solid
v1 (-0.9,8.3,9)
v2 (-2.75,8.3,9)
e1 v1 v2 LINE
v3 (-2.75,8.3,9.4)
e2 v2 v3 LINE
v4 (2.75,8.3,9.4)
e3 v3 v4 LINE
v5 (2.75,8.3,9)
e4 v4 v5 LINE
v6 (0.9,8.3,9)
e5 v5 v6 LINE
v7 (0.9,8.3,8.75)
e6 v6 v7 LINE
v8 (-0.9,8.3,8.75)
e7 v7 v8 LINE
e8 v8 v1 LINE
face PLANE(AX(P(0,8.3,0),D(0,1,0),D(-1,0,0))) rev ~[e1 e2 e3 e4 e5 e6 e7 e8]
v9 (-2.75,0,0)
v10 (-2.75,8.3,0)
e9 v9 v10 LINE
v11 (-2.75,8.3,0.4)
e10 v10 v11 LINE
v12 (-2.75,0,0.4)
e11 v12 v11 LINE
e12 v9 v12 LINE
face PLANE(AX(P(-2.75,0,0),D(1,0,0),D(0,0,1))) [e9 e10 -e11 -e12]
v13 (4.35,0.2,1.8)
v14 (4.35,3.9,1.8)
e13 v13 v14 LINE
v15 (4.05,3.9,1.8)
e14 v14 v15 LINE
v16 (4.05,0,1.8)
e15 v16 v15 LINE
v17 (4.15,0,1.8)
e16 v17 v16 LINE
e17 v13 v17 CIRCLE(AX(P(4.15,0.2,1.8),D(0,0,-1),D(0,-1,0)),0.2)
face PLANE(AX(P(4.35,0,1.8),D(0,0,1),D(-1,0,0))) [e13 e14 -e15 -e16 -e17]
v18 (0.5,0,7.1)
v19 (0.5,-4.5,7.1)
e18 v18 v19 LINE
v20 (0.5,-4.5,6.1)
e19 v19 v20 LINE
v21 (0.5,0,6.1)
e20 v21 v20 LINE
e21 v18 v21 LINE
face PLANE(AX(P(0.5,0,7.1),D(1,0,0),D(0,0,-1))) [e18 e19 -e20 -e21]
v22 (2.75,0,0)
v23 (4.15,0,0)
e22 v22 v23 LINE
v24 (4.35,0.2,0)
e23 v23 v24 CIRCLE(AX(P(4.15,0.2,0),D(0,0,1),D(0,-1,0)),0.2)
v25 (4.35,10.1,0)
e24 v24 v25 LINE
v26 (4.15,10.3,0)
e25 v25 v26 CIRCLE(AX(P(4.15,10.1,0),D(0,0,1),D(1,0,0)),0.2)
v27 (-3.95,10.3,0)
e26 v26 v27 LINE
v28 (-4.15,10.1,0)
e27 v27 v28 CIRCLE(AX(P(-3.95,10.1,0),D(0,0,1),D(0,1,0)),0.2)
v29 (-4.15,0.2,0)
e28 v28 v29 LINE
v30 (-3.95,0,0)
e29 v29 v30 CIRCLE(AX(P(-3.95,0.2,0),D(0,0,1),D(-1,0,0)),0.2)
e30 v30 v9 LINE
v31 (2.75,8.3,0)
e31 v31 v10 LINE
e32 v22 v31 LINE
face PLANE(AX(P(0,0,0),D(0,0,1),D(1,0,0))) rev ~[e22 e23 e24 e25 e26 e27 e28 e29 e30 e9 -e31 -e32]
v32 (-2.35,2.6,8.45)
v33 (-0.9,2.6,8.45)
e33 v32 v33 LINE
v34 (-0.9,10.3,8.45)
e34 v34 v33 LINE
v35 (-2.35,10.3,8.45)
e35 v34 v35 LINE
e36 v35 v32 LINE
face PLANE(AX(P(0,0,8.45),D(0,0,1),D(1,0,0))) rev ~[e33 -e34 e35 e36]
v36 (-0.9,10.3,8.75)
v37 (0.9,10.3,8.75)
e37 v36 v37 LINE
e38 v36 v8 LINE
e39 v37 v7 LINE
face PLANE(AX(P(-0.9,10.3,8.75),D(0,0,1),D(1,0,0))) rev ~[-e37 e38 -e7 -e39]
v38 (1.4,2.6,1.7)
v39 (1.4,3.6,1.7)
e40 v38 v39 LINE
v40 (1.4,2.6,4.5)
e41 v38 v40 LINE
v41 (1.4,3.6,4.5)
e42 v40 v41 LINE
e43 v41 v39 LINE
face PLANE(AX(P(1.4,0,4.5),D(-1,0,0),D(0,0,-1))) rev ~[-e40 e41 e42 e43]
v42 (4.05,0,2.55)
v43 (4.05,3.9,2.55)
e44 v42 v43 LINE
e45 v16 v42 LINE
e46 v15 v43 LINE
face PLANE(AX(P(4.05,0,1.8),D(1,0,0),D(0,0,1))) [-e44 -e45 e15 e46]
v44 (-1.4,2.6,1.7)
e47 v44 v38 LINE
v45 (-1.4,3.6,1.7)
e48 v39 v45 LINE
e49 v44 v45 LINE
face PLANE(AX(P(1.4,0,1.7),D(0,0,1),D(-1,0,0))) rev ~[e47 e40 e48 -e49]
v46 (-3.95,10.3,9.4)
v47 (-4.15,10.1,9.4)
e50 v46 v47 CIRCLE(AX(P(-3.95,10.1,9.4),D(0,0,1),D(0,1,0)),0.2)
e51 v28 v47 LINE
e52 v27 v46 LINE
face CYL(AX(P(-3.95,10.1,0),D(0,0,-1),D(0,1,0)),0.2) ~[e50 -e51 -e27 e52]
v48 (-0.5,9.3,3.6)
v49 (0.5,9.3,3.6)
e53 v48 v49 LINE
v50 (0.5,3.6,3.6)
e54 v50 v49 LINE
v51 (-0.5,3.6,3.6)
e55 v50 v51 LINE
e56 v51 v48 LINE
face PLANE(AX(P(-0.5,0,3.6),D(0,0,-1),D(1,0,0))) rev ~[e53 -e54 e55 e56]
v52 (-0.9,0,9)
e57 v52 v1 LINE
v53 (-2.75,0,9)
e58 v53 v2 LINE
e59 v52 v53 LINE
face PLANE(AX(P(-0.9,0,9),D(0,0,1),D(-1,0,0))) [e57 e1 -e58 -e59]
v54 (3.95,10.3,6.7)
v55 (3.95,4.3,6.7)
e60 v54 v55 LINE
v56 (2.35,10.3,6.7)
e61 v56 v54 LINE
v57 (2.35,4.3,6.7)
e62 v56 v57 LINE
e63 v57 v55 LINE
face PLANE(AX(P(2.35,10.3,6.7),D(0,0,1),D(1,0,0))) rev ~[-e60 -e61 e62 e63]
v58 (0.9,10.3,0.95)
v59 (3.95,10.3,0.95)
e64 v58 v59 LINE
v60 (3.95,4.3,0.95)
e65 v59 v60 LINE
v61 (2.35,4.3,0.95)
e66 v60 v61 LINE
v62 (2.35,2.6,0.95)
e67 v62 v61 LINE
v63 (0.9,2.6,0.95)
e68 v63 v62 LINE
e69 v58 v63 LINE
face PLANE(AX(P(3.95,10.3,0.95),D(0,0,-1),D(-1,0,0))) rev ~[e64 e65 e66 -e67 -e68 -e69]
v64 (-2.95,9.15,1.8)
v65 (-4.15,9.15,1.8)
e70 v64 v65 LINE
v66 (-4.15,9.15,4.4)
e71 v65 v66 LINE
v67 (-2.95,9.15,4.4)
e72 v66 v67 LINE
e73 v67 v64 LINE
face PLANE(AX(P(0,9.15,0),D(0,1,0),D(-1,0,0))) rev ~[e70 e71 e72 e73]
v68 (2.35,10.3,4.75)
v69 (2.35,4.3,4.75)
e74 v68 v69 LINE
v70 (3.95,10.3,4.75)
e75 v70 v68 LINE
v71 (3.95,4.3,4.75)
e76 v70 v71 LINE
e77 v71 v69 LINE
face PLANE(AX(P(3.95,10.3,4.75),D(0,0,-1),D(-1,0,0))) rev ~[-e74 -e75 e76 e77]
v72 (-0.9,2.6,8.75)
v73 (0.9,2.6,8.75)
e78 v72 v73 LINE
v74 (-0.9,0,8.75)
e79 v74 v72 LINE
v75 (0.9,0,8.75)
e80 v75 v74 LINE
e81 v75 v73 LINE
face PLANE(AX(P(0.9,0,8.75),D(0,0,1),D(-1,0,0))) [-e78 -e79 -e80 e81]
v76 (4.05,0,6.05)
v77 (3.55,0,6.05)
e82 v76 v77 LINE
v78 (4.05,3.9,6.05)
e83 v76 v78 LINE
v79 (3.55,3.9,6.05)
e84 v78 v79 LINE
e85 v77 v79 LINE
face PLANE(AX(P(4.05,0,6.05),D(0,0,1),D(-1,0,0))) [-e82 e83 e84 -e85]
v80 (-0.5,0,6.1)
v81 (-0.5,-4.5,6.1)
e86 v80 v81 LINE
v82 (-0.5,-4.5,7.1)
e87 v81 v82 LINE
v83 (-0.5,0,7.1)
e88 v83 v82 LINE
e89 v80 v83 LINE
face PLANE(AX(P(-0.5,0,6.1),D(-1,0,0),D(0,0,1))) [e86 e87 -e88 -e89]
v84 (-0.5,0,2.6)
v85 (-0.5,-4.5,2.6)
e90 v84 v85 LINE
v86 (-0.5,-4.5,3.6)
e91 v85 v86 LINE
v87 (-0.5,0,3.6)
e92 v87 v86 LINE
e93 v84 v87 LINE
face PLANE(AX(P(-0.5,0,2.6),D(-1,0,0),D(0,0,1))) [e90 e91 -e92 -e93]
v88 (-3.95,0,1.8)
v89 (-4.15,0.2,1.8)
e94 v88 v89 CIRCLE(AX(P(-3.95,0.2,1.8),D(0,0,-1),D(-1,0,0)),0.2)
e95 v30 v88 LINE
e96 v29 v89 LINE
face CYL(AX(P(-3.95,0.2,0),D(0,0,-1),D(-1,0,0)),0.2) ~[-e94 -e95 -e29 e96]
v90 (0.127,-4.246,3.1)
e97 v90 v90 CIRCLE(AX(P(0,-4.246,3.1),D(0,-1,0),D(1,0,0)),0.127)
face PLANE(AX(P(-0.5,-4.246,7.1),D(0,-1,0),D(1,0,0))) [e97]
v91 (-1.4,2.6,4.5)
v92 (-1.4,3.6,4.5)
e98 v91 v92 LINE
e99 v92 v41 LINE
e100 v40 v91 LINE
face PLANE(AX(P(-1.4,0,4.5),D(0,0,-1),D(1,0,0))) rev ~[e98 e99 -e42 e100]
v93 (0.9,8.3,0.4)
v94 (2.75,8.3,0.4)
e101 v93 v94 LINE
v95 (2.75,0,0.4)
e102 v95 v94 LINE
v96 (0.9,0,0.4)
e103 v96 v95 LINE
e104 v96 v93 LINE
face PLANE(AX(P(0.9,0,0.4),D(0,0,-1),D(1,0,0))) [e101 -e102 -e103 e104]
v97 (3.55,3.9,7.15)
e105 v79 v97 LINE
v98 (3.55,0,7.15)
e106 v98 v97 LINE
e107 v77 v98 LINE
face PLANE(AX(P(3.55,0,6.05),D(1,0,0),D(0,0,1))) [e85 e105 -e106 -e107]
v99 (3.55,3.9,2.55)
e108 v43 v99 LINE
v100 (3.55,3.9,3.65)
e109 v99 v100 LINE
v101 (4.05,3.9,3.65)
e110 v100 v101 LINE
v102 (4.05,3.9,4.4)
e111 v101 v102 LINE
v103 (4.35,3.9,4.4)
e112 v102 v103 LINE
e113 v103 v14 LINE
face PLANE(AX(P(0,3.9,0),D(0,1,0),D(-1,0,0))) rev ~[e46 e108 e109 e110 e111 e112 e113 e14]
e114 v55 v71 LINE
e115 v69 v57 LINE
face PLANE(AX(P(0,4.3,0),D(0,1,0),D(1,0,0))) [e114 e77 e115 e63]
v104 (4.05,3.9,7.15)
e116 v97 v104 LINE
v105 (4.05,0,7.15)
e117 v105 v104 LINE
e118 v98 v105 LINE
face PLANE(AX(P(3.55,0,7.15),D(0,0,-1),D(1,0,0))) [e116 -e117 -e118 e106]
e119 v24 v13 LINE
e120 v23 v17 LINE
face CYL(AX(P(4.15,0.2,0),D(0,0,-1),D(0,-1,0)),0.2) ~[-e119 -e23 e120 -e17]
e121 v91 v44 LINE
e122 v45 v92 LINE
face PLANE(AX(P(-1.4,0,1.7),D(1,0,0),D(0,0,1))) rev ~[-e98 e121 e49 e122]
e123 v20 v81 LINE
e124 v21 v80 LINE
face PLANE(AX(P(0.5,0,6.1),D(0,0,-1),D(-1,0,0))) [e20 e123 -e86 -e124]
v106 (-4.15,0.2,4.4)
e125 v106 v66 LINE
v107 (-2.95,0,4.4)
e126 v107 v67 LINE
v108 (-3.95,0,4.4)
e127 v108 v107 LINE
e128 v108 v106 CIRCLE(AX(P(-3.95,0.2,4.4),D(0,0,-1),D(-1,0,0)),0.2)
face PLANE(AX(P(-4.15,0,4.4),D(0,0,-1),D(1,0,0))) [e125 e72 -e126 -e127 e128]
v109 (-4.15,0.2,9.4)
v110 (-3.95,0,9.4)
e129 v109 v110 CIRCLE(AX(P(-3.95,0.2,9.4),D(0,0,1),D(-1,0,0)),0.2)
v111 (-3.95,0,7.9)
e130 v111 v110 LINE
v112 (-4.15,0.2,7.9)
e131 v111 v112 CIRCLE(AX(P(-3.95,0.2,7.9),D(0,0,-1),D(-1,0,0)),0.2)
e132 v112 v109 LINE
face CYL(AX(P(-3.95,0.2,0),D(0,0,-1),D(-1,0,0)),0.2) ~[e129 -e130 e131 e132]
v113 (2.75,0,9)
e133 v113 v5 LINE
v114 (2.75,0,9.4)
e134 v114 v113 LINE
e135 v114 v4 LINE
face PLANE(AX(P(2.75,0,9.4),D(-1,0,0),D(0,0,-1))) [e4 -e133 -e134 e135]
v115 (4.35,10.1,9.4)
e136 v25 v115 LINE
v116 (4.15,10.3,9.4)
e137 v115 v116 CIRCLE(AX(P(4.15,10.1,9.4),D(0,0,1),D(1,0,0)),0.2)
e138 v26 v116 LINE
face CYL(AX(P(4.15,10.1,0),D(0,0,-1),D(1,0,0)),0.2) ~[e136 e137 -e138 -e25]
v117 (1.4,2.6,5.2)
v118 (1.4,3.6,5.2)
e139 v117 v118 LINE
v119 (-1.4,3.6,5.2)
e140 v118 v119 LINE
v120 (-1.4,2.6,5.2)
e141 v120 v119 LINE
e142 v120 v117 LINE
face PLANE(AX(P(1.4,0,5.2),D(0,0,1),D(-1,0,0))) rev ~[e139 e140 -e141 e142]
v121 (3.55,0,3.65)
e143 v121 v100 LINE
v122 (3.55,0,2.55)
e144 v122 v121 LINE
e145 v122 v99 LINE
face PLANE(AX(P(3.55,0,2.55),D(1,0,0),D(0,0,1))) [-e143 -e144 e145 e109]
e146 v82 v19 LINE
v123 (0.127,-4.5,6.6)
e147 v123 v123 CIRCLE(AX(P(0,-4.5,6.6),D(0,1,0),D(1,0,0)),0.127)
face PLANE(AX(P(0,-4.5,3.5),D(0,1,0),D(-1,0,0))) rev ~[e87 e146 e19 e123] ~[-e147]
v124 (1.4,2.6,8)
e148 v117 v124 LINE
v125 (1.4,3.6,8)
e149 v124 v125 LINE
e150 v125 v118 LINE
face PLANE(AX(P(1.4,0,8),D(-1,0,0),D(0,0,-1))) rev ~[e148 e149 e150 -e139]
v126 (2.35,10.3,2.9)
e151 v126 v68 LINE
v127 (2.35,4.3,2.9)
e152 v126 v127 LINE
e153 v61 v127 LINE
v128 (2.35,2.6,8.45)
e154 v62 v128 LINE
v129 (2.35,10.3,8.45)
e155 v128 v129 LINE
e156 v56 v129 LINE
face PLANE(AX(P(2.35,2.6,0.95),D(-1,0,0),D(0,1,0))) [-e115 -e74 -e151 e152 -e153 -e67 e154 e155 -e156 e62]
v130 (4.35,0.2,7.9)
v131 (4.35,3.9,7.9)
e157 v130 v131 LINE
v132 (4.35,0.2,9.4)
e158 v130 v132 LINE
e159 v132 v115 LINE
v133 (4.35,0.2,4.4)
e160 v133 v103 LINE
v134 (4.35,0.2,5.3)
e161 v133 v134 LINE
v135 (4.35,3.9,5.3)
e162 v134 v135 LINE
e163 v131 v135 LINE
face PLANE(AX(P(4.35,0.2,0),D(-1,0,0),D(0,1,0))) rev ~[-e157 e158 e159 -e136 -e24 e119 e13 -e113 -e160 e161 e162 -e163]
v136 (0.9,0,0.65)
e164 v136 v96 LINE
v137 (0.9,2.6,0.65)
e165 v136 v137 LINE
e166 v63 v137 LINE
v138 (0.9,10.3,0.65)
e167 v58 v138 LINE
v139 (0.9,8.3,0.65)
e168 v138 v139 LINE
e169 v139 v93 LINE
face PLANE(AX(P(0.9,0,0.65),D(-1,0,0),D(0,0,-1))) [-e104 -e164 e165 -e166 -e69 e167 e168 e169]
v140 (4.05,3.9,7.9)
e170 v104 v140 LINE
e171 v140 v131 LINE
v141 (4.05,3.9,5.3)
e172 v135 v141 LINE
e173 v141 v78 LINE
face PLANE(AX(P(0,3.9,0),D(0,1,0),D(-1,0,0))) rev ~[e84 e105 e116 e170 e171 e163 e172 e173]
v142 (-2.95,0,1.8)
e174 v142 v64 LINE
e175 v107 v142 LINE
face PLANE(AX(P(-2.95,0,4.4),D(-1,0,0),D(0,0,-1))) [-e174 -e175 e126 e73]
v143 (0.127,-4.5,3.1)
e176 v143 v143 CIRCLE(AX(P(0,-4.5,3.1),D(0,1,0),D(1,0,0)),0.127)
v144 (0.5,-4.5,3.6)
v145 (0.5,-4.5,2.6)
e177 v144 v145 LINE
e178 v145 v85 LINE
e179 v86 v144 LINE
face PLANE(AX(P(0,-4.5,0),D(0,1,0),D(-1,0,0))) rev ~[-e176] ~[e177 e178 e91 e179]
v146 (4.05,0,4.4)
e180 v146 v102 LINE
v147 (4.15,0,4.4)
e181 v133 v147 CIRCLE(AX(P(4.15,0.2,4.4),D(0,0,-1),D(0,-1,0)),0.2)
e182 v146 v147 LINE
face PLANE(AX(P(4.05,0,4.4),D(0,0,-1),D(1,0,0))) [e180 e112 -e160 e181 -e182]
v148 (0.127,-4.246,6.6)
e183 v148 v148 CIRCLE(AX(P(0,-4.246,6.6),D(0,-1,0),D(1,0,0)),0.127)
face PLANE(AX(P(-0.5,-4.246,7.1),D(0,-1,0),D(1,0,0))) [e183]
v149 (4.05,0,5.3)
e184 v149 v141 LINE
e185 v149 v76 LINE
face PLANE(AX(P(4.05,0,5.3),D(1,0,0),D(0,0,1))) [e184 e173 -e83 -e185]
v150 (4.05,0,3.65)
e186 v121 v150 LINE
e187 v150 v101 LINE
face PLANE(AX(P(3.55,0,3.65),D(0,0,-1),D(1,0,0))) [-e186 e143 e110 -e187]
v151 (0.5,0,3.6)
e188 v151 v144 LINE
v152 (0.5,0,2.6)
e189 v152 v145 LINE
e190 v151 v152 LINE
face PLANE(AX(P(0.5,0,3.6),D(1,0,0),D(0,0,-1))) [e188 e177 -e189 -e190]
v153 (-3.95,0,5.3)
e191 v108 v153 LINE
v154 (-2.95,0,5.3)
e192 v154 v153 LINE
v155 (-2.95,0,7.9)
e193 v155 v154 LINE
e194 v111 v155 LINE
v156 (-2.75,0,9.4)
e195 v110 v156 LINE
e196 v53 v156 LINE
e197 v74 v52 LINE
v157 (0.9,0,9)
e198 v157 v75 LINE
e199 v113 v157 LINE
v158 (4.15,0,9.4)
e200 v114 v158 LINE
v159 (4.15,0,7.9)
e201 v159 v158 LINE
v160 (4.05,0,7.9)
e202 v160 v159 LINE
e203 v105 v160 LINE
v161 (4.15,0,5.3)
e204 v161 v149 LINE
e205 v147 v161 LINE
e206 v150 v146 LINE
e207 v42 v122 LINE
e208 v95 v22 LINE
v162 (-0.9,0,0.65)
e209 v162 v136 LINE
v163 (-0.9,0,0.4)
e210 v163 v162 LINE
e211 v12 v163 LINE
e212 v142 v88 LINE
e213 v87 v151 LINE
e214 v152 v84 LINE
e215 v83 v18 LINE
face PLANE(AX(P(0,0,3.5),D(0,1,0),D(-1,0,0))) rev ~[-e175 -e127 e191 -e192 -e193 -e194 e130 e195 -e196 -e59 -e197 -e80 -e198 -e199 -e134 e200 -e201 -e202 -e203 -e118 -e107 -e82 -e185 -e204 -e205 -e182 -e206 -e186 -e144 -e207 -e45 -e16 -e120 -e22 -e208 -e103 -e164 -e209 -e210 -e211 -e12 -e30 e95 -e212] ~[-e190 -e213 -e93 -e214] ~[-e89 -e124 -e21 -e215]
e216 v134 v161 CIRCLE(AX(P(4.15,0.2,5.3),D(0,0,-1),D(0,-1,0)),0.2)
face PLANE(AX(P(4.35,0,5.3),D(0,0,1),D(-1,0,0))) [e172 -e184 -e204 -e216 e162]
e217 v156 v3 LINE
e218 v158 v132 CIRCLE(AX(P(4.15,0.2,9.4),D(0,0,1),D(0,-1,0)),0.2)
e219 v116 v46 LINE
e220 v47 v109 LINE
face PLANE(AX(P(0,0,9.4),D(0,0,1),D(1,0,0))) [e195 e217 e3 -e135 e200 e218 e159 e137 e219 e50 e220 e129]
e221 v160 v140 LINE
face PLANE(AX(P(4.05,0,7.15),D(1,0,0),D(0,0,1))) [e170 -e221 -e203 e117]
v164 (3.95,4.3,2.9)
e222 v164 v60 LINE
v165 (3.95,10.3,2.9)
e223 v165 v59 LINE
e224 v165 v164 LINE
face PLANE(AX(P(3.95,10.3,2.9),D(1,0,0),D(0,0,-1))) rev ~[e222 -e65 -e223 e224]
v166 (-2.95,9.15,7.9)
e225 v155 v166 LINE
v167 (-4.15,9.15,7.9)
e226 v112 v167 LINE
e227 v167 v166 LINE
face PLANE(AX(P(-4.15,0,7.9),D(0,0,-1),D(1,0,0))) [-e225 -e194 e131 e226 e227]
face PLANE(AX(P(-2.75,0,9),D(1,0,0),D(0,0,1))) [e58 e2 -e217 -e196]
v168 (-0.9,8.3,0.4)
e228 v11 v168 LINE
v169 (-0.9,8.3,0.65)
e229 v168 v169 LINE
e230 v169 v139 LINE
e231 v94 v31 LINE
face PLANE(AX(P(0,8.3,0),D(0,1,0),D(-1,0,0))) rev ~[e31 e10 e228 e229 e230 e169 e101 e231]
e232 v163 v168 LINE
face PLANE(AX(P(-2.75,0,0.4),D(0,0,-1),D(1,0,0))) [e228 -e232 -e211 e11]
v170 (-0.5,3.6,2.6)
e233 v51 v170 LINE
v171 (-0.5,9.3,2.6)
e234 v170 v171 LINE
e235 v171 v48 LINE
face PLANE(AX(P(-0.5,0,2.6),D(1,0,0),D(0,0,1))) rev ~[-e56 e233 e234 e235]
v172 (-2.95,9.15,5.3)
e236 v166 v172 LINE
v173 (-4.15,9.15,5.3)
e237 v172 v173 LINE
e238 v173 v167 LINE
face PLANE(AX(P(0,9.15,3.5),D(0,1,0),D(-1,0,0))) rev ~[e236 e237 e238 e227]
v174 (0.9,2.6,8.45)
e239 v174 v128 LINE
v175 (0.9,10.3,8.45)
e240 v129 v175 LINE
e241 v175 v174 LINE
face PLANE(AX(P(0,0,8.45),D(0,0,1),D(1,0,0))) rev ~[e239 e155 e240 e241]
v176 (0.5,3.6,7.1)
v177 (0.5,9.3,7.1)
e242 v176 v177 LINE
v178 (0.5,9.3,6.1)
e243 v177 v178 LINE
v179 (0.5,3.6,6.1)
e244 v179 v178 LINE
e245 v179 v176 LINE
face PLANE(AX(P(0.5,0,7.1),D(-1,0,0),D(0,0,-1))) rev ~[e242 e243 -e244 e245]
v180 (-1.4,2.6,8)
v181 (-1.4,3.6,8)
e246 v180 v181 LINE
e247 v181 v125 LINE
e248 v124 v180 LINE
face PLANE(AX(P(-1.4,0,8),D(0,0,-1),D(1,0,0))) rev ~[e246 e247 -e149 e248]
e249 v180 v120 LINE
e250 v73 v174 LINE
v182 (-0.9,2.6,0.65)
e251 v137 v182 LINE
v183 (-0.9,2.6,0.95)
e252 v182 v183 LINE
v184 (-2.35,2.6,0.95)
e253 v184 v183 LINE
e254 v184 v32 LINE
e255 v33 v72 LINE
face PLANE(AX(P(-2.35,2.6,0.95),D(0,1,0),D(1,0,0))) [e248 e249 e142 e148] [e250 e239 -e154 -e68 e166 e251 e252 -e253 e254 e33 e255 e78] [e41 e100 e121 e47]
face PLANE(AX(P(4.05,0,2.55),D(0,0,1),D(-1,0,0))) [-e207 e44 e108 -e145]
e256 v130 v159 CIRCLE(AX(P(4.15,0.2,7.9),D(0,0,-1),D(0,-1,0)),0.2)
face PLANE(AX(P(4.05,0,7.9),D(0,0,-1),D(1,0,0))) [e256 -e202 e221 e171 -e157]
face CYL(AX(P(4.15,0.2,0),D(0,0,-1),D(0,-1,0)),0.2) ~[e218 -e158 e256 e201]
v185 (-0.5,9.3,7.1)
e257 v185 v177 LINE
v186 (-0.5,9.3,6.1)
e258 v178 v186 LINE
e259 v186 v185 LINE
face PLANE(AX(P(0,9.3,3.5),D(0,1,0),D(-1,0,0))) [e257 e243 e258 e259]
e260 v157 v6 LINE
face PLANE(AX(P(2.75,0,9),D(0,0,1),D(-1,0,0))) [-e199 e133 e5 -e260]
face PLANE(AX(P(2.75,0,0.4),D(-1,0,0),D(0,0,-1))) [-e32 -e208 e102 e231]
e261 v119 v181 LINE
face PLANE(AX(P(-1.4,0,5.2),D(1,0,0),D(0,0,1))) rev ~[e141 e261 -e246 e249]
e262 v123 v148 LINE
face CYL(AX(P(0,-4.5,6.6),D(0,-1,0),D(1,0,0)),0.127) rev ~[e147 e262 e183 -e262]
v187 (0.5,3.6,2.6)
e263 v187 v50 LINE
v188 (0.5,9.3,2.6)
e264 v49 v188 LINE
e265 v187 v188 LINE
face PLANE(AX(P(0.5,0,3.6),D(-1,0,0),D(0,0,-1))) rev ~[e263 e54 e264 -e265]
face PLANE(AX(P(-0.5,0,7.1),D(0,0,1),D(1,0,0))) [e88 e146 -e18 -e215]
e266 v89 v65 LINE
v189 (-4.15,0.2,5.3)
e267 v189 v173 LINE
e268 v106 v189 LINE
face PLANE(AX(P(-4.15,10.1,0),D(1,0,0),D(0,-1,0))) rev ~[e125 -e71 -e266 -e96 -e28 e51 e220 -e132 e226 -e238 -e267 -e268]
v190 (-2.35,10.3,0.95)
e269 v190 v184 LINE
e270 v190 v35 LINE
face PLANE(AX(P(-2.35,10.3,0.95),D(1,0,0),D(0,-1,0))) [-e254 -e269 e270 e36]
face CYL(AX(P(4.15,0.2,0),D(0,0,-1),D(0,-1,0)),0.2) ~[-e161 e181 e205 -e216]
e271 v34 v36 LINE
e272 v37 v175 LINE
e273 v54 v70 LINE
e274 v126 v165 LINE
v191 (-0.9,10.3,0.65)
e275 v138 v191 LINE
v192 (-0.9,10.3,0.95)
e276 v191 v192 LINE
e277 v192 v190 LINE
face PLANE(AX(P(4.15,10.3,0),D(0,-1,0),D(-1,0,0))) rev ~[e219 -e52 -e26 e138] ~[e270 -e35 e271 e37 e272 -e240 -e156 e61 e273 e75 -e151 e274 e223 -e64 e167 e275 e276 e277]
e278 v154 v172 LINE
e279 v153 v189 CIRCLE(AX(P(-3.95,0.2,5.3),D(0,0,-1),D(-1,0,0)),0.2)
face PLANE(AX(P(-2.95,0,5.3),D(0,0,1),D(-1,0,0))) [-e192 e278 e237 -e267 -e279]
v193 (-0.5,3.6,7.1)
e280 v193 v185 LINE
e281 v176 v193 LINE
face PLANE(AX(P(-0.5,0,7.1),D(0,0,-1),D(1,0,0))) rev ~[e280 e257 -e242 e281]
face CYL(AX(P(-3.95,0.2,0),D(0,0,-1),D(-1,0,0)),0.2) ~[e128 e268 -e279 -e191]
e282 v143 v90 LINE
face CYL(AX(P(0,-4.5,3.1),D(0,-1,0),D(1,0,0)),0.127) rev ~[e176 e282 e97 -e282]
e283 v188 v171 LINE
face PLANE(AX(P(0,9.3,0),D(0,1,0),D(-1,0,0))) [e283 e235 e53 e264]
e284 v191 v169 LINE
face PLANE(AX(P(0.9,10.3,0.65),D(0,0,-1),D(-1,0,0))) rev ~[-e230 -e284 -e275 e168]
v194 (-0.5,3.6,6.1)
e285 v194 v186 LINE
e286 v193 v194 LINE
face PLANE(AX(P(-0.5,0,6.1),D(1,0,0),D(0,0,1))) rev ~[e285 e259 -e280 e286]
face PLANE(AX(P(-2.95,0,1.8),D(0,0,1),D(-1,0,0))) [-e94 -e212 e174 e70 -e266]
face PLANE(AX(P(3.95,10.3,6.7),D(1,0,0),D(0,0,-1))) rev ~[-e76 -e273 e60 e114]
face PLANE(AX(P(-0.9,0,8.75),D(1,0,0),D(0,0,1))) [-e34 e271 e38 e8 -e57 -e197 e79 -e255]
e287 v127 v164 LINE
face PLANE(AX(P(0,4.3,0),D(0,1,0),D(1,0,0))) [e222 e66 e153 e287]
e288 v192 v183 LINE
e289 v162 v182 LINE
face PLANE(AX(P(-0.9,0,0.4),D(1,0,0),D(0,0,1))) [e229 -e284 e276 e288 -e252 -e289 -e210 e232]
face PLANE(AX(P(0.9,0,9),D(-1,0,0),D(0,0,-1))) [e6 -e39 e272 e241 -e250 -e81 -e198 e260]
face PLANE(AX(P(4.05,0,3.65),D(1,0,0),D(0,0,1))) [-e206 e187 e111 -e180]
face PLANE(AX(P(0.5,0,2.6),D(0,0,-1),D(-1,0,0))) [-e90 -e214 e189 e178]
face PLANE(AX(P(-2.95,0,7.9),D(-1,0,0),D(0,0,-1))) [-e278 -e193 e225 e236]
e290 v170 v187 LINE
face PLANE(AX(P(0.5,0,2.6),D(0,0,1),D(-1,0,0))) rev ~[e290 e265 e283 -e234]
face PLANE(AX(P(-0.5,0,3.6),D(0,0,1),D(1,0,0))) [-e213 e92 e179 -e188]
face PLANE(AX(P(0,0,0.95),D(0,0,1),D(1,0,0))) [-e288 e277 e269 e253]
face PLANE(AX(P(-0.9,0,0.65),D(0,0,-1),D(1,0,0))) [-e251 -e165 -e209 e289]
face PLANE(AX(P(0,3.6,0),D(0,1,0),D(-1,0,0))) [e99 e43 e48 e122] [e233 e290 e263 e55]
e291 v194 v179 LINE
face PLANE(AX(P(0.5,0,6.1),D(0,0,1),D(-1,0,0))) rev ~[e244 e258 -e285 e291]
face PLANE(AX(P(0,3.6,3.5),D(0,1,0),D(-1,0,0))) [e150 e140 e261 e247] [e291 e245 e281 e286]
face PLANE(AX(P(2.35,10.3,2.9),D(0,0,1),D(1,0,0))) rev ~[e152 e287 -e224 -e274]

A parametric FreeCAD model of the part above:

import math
import FreeCAD as App
import Part
import Sketcher


def add_polygon(sketch, points):
    """Adds a closed chain of lines whose ends are joined by coincident constraints."""
    first, n = sketch.GeometryCount, len(points)
    for a, b in zip(points, points[1:] + points[:1]):
        sketch.addGeometry(Part.LineSegment(App.Vector(*a, 0), App.Vector(*b, 0)), False)
    for i in range(n):
        sketch.addConstraint(Sketcher.Constraint("Coincident", first + i, 2, first + (i + 1) % n, 1))

doc = App.newDocument("Part")
params = doc.addObject("Spreadsheet::Sheet", "Params")
for row, (alias, value) in enumerate([
    ("sketch1_radius", "0.2 mm"),
    ("sketch1_width", "8.1 mm"),
    ("sketch1_height", "9.9 mm"),
    ("pad1_length", "9.4 mm"),
    ("sketch2_width", "4.7 mm"),
    ("sketch2_height", "7.7 mm"),
    ("pocket1_length", "7.5 mm"),
    ("sketch3_width", "1.8 mm"),
    ("sketch3_height", "0.3 mm"),
    ("pocket2_length", "7.7 mm"),
    ("sketch4_width", "1.8 mm"),
    ("sketch4_height", "0.3 mm"),
    ("pocket3_length", "7.7 mm"),
    ("sketch5_width", "1.6 mm"),
    ("sketch5_height", "1.95 mm"),
    ("pocket4_length", "6 mm"),
    ("sketch6_width", "1.6 mm"),
    ("sketch6_height", "1.95 mm"),
    ("pocket5_length", "6 mm"),
    ("sketch7_width", "2.8 mm"),
    ("pad2_length", "3.6 mm"),
    ("linearpattern_pitch", "3.5 mm"),
    ("sketch8_width", "1 mm"),
    ("pad3_length", "9.3 mm"),
    ("linearpattern2_pitch", "3.5 mm"),
    ("sketch9_width", "1 mm"),
    ("pad4_length", "4.5 mm"),
    ("linearpattern3_pitch", "3.5 mm"),
    ("sketch10_width", "5.5 mm"),
    ("sketch10_width2", "1.8 mm"),
    ("sketch10_height", "0.4 mm"),
    ("sketch10_height2", "0.25 mm"),
    ("pocket6_length", "8.3 mm"),
    ("sketch11_width", "5.5 mm"),
    ("sketch11_width2", "1.8 mm"),
    ("sketch11_height", "0.4 mm"),
    ("sketch11_height2", "0.25 mm"),
    ("pocket7_length", "8.3 mm"),
    ("sketch12_width", "1.2 mm"),
    ("sketch12_height", "2.6 mm"),
    ("pocket8_length", "9.15 mm"),
    ("linearpattern4_pitch", "3.5 mm"),
    ("sketch13_width", "0.5 mm"),
    ("sketch13_width2", "0.3 mm"),
    ("sketch13_height", "1.1 mm"),
    ("sketch13_height2", "2.6 mm"),
    ("pocket9_length", "3.9 mm"),
    ("sketch14_width", "0.5 mm"),
    ("sketch14_width2", "0.3 mm"),
    ("sketch14_height", "1.1 mm"),
    ("sketch14_height2", "2.6 mm"),
    ("pocket10_length", "3.9 mm"),
    ("pocket11_length", "0.254 mm"),
], start=1):
    params.set(f"A{row}", alias)
    params.set(f"B{row}", "=" + value)
    params.setAlias(f"B{row}", alias)

body = doc.addObject("PartDesign::Body", "Body")

# Sketch on XY plane
sketch1 = doc.addObject("Sketcher::SketchObject", "Sketch")
body.addObject(sketch1)
sketch1.AttachmentSupport = (doc.XY_Plane, [""])
sketch1.MapMode = "FlatFace"
sketch1.addGeometry([
    Part.LineSegment(App.Vector(-4.15, 10.1, 0), App.Vector(-4.15, 0.2, 0)),  # 0
    Part.ArcOfCircle(Part.Circle(App.Vector(-3.95, 0.2, 0), App.Vector(0, 0, 1), 0.2), math.radians(180), math.radians(270)),  # 1
    Part.LineSegment(App.Vector(-3.95, 0, 0), App.Vector(4.15, 0, 0)),  # 2
    Part.ArcOfCircle(Part.Circle(App.Vector(4.15, 0.2, 0), App.Vector(0, 0, 1), 0.2), math.radians(-90), math.radians(0)),  # 3
    Part.LineSegment(App.Vector(4.35, 0.2, 0), App.Vector(4.35, 10.1, 0)),  # 4
    Part.ArcOfCircle(Part.Circle(App.Vector(4.15, 10.1, 0), App.Vector(0, 0, 1), 0.2), math.radians(0), math.radians(90)),  # 5
    Part.LineSegment(App.Vector(4.15, 10.3, 0), App.Vector(-3.95, 10.3, 0)),  # 6
    Part.ArcOfCircle(Part.Circle(App.Vector(-3.95, 10.1, 0), App.Vector(0, 0, 1), 0.2), math.radians(90), math.radians(180)),  # 7
], False)
sketch1.addConstraint([
    Sketcher.Constraint("Tangent", 0, 2, 1, 1),
    Sketcher.Constraint("Tangent", 1, 2, 2, 1),
    Sketcher.Constraint("Tangent", 2, 2, 3, 1),
    Sketcher.Constraint("Tangent", 3, 2, 4, 1),
    Sketcher.Constraint("Tangent", 4, 2, 5, 1),
    Sketcher.Constraint("Tangent", 5, 2, 6, 1),
    Sketcher.Constraint("Tangent", 6, 2, 7, 1),
    Sketcher.Constraint("Tangent", 7, 2, 0, 1),
    Sketcher.Constraint("Vertical", 0),
    Sketcher.Constraint("Horizontal", 2),
    Sketcher.Constraint("Vertical", 4),
    Sketcher.Constraint("Horizontal", 6),
    Sketcher.Constraint("Equal", 1, 3),
    Sketcher.Constraint("Equal", 3, 5),
    Sketcher.Constraint("Equal", 5, 7),
    Sketcher.Constraint("PointOnObject", 1, 2, -1),
    Sketcher.Constraint("Radius", 1, 0.2),
    Sketcher.Constraint("DistanceX", 2, 1, 2, 2, 8.1),
    Sketcher.Constraint("DistanceY", 0, 2, 0, 1, 9.9),
    Sketcher.Constraint("DistanceX", 1, 3, -1, 1, 3.95),
])
sketch1.setExpression("Constraints[16]", "Params.sketch1_radius")
sketch1.setExpression("Constraints[17]", "Params.sketch1_width")
sketch1.setExpression("Constraints[18]", "Params.sketch1_height")
pad1 = doc.addObject("PartDesign::Pad", "Pad")
body.addObject(pad1)
pad1.Profile = sketch1
pad1.setExpression("Length", "Params.pad1_length")

# Sketch on XY plane
sketch2 = doc.addObject("Sketcher::SketchObject", "Sketch001")
body.addObject(sketch2)
sketch2.AttachmentSupport = (doc.XY_Plane, [""])
sketch2.MapMode = "FlatFace"
sketch2.AttachmentOffset = App.Placement(App.Vector(0, 0, 0.95), App.Rotation())
add_polygon(sketch2, [(2.35, 10.3), (-2.35, 10.3), (-2.35, 2.6), (2.35, 2.6)])  # lines 0-3
sketch2.addConstraint([
    Sketcher.Constraint("Horizontal", 0),
    Sketcher.Constraint("Vertical", 1),
    Sketcher.Constraint("Horizontal", 2),
    Sketcher.Constraint("Vertical", 3),
    Sketcher.Constraint("DistanceX", 0, 2, 0, 1, 4.7),
    Sketcher.Constraint("DistanceY", 1, 2, 1, 1, 7.7),
    Sketcher.Constraint("DistanceY", -1, 1, 0, 2, 10.3),
    Sketcher.Constraint("DistanceX", 0, 2, -1, 1, 2.35),
])
sketch2.setExpression("Constraints[8]", "Params.sketch2_width")
sketch2.setExpression("Constraints[9]", "Params.sketch2_height")
pocket1 = doc.addObject("PartDesign::Pocket", "Pocket")
body.addObject(pocket1)
pocket1.Profile = sketch2
pocket1.setExpression("Length", "Params.pocket1_length")
pocket1.Reversed = True

# Sketch on XZ plane
sketch3 = doc.addObject("Sketcher::SketchObject", "Sketch002")
body.addObject(sketch3)
sketch3.AttachmentSupport = (doc.XZ_Plane, [""])
sketch3.MapMode = "FlatFace"
sketch3.AttachmentOffset = App.Placement(App.Vector(0, 0, -10.3), App.Rotation())
add_polygon(sketch3, [(-0.9, 0.65), (-0.9, 0.95), (0.9, 0.95), (0.9, 0.65)])  # lines 0-3
sketch3.addConstraint([
    Sketcher.Constraint("Vertical", 0),
    Sketcher.Constraint("Horizontal", 1),
    Sketcher.Constraint("Vertical", 2),
    Sketcher.Constraint("Horizontal", 3),
    Sketcher.Constraint("DistanceX", 1, 1, 1, 2, 1.8),
    Sketcher.Constraint("DistanceY", 0, 1, 0, 2, 0.3),
    Sketcher.Constraint("DistanceX", 0, 2, -1, 1, 0.9),
    Sketcher.Constraint("DistanceY", -1, 1, 0, 2, 0.95),
])
sketch3.setExpression("Constraints[8]", "Params.sketch3_width")
sketch3.setExpression("Constraints[9]", "Params.sketch3_height")
pocket2 = doc.addObject("PartDesign::Pocket", "Pocket001")
body.addObject(pocket2)
pocket2.Profile = sketch3
pocket2.setExpression("Length", "Params.pocket2_length")
pocket2.Reversed = True

# Sketch on XZ plane
sketch4 = doc.addObject("Sketcher::SketchObject", "Sketch003")
body.addObject(sketch4)
sketch4.AttachmentSupport = (doc.XZ_Plane, [""])
sketch4.MapMode = "FlatFace"
sketch4.AttachmentOffset = App.Placement(App.Vector(0, 0, -10.3), App.Rotation())
add_polygon(sketch4, [(0.9, 8.45), (-0.9, 8.45), (-0.9, 8.75), (0.9, 8.75)])  # lines 0-3
sketch4.addConstraint([
    Sketcher.Constraint("Horizontal", 0),
    Sketcher.Constraint("Vertical", 1),
    Sketcher.Constraint("Horizontal", 2),
    Sketcher.Constraint("Vertical", 3),
    Sketcher.Constraint("DistanceX", 0, 2, 0, 1, 1.8),
    Sketcher.Constraint("DistanceY", 1, 1, 1, 2, 0.3),
    Sketcher.Constraint("DistanceX", 0, 2, -1, 1, 0.9),
    Sketcher.Constraint("DistanceY", -1, 1, 0, 2, 8.45),
])
sketch4.setExpression("Constraints[8]", "Params.sketch4_width")
sketch4.setExpression("Constraints[9]", "Params.sketch4_height")
pocket3 = doc.addObject("PartDesign::Pocket", "Pocket002")
body.addObject(pocket3)
pocket3.Profile = sketch4
pocket3.setExpression("Length", "Params.pocket3_length")
pocket3.Reversed = True

# Sketch on XZ plane
sketch5 = doc.addObject("Sketcher::SketchObject", "Sketch004")
body.addObject(sketch5)
sketch5.AttachmentSupport = (doc.XZ_Plane, [""])
sketch5.MapMode = "FlatFace"
sketch5.AttachmentOffset = App.Placement(App.Vector(0, 0, -10.3), App.Rotation())
add_polygon(sketch5, [(3.95, 0.95), (2.35, 0.95), (2.35, 2.9), (3.95, 2.9)])  # lines 0-3
sketch5.addConstraint([
    Sketcher.Constraint("Horizontal", 0),
    Sketcher.Constraint("Vertical", 1),
    Sketcher.Constraint("Horizontal", 2),
    Sketcher.Constraint("Vertical", 3),
    Sketcher.Constraint("DistanceX", 0, 2, 0, 1, 1.6),
    Sketcher.Constraint("DistanceY", 1, 1, 1, 2, 1.95),
    Sketcher.Constraint("DistanceY", -1, 1, 1, 2, 2.9),
    Sketcher.Constraint("DistanceX", -1, 1, 0, 2, 2.35),
])
sketch5.setExpression("Constraints[8]", "Params.sketch5_width")
sketch5.setExpression("Constraints[9]", "Params.sketch5_height")
pocket4 = doc.addObject("PartDesign::Pocket", "Pocket003")
body.addObject(pocket4)
pocket4.Profile = sketch5
pocket4.setExpression("Length", "Params.pocket4_length")
pocket4.Reversed = True

# Sketch on XZ plane
sketch6 = doc.addObject("Sketcher::SketchObject", "Sketch005")
body.addObject(sketch6)
sketch6.AttachmentSupport = (doc.XZ_Plane, [""])
sketch6.MapMode = "FlatFace"
sketch6.AttachmentOffset = App.Placement(App.Vector(0, 0, -10.3), App.Rotation())
add_polygon(sketch6, [(2.35, 4.75), (2.35, 6.7), (3.95, 6.7), (3.95, 4.75)])  # lines 0-3
sketch6.addConstraint([
    Sketcher.Constraint("Vertical", 0),
    Sketcher.Constraint("Horizontal", 1),
    Sketcher.Constraint("Vertical", 2),
    Sketcher.Constraint("Horizontal", 3),
    Sketcher.Constraint("DistanceX", 1, 1, 1, 2, 1.6),
    Sketcher.Constraint("DistanceY", 0, 1, 0, 2, 1.95),
    Sketcher.Constraint("DistanceY", -1, 1, 0, 2, 6.7),
    Sketcher.Constraint("DistanceX", -1, 1, 0, 2, 2.35),
])
sketch6.setExpression("Constraints[8]", "Params.sketch6_width")
sketch6.setExpression("Constraints[9]", "Params.sketch6_height")
pocket5 = doc.addObject("PartDesign::Pocket", "Pocket004")
body.addObject(pocket5)
pocket5.Profile = sketch6
pocket5.setExpression("Length", "Params.pocket5_length")
pocket5.Reversed = True

# Sketch on XZ plane
sketch7 = doc.addObject("Sketcher::SketchObject", "Sketch006")
body.addObject(sketch7)
sketch7.AttachmentSupport = (doc.XZ_Plane, [""])
sketch7.MapMode = "FlatFace"
add_polygon(sketch7, [(1.4, 1.7), (-1.4, 1.7), (-1.4, 4.5), (1.4, 4.5)])  # lines 0-3
sketch7.addConstraint([
    Sketcher.Constraint("Horizontal", 0),
    Sketcher.Constraint("Vertical", 1),
    Sketcher.Constraint("Horizontal", 2),
    Sketcher.Constraint("Vertical", 3),
    Sketcher.Constraint("Equal", 2, 1),
    Sketcher.Constraint("DistanceX", 0, 2, 0, 1, 2.8),
    Sketcher.Constraint("DistanceX", 0, 2, -1, 1, 1.4),
    Sketcher.Constraint("DistanceY", -1, 1, 0, 2, 1.7),
])
sketch7.setExpression("Constraints[9]", "Params.sketch7_width")
pad2 = doc.addObject("PartDesign::Pad", "Pad001")
body.addObject(pad2)
pad2.Profile = sketch7
pad2.setExpression("Length", "Params.pad2_length")
pad2.Reversed = True
doc.recompute()

linearpattern = doc.addObject("PartDesign::LinearPattern", "LinearPattern")
body.addObject(linearpattern)
linearpattern.Originals = [pad2]
linearpattern.Direction = (doc.Z_Axis, [""])
linearpattern.Mode = "offset"
linearpattern.setExpression("Offset", "Params.linearpattern_pitch")
linearpattern.Occurrences = 2
body.Tip = linearpattern

# Sketch on XZ plane
sketch8 = doc.addObject("Sketcher::SketchObject", "Sketch007")
body.addObject(sketch8)
sketch8.AttachmentSupport = (doc.XZ_Plane, [""])
sketch8.MapMode = "FlatFace"
add_polygon(sketch8, [(0.5, 2.6), (-0.5, 2.6), (-0.5, 3.6), (0.5, 3.6)])  # lines 0-3
sketch8.addConstraint([
    Sketcher.Constraint("Horizontal", 0),
    Sketcher.Constraint("Vertical", 1),
    Sketcher.Constraint("Horizontal", 2),
    Sketcher.Constraint("Vertical", 3),
    Sketcher.Constraint("Equal", 2, 1),
    Sketcher.Constraint("DistanceX", 0, 2, 0, 1, 1.0),
    Sketcher.Constraint("DistanceX", 0, 2, -1, 1, 0.5),
    Sketcher.Constraint("DistanceY", -1, 1, 0, 2, 2.6),
])
sketch8.setExpression("Constraints[9]", "Params.sketch8_width")
pad3 = doc.addObject("PartDesign::Pad", "Pad002")
body.addObject(pad3)
pad3.Profile = sketch8
pad3.setExpression("Length", "Params.pad3_length")
pad3.Reversed = True
doc.recompute()

linearpattern2 = doc.addObject("PartDesign::LinearPattern", "LinearPattern001")
body.addObject(linearpattern2)
linearpattern2.Originals = [pad3]
linearpattern2.Direction = (doc.Z_Axis, [""])
linearpattern2.Mode = "offset"
linearpattern2.setExpression("Offset", "Params.linearpattern2_pitch")
linearpattern2.Occurrences = 2
body.Tip = linearpattern2

# Sketch on XZ plane
sketch9 = doc.addObject("Sketcher::SketchObject", "Sketch008")
body.addObject(sketch9)
sketch9.AttachmentSupport = (doc.XZ_Plane, [""])
sketch9.MapMode = "FlatFace"
add_polygon(sketch9, [(0.5, 2.6), (-0.5, 2.6), (-0.5, 3.6), (0.5, 3.6)])  # lines 0-3
sketch9.addConstraint([
    Sketcher.Constraint("Horizontal", 0),
    Sketcher.Constraint("Vertical", 1),
    Sketcher.Constraint("Horizontal", 2),
    Sketcher.Constraint("Vertical", 3),
    Sketcher.Constraint("Equal", 2, 1),
    Sketcher.Constraint("DistanceX", 0, 2, 0, 1, 1.0),
    Sketcher.Constraint("DistanceX", 0, 2, -1, 1, 0.5),
    Sketcher.Constraint("DistanceY", -1, 1, 0, 2, 2.6),
])
sketch9.setExpression("Constraints[9]", "Params.sketch9_width")
pad4 = doc.addObject("PartDesign::Pad", "Pad003")
body.addObject(pad4)
pad4.Profile = sketch9
pad4.setExpression("Length", "Params.pad4_length")
doc.recompute()

linearpattern3 = doc.addObject("PartDesign::LinearPattern", "LinearPattern002")
body.addObject(linearpattern3)
linearpattern3.Originals = [pad4]
linearpattern3.Direction = (doc.Z_Axis, [""])
linearpattern3.Mode = "offset"
linearpattern3.setExpression("Offset", "Params.linearpattern3_pitch")
linearpattern3.Occurrences = 2
body.Tip = linearpattern3

# Sketch on XZ plane
sketch10 = doc.addObject("Sketcher::SketchObject", "Sketch009")
body.addObject(sketch10)
sketch10.AttachmentSupport = (doc.XZ_Plane, [""])
sketch10.MapMode = "FlatFace"
add_polygon(sketch10, [(2.75, 0), (-2.75, 0), (-2.75, 0.4), (-0.9, 0.4), (-0.9, 0.65), (0.9, 0.65), (0.9, 0.4), (2.75, 0.4)])  # lines 0-7
sketch10.addConstraint([
    Sketcher.Constraint("Horizontal", 0),
    Sketcher.Constraint("Vertical", 1),
    Sketcher.Constraint("Horizontal", 2),
    Sketcher.Constraint("Vertical", 3),
    Sketcher.Constraint("Horizontal", 4),
    Sketcher.Constraint("Vertical", 5),
    Sketcher.Constraint("Horizontal", 6),
    Sketcher.Constraint("Vertical", 7),
    Sketcher.Constraint("Symmetric", 0, 2, 7, 2, -1, 1),
    Sketcher.Constraint("Symmetric", 2, 2, 5, 2, -2),
    Sketcher.Constraint("DistanceX", 0, 2, 0, 1, 5.5),
    Sketcher.Constraint("DistanceX", 4, 1, 4, 2, 1.8),
    Sketcher.Constraint("DistanceY", 1, 1, 1, 2, 0.4),
    Sketcher.Constraint("DistanceY", 3, 1, 3, 2, 0.25),
])
sketch10.setExpression("Constraints[18]", "Params.sketch10_width")
sketch10.setExpression("Constraints[19]", "Params.sketch10_width2")
sketch10.setExpression("Constraints[20]", "Params.sketch10_height")
sketch10.setExpression("Constraints[21]", "Params.sketch10_height2")
pocket6 = doc.addObject("PartDesign::Pocket", "Pocket005")
body.addObject(pocket6)
pocket6.Profile = sketch10
pocket6.setExpression("Length", "Params.pocket6_length")

# Sketch on XZ plane
sketch11 = doc.addObject("Sketcher::SketchObject", "Sketch010")
body.addObject(sketch11)
sketch11.AttachmentSupport = (doc.XZ_Plane, [""])
sketch11.MapMode = "FlatFace"
add_polygon(sketch11, [(-2.75, 9), (-2.75, 9.4), (2.75, 9.4), (2.75, 9), (0.9, 9), (0.9, 8.75), (-0.9, 8.75), (-0.9, 9)])  # lines 0-7
sketch11.addConstraint([
    Sketcher.Constraint("Vertical", 0),
    Sketcher.Constraint("Horizontal", 1),
    Sketcher.Constraint("Vertical", 2),
    Sketcher.Constraint("Horizontal", 3),
    Sketcher.Constraint("Vertical", 4),
    Sketcher.Constraint("Horizontal", 5),
    Sketcher.Constraint("Vertical", 6),
    Sketcher.Constraint("Horizontal", 7),
    Sketcher.Constraint("Symmetric", 3, 2, 6, 2, -2),
    Sketcher.Constraint("Equal", 3, 7),
    Sketcher.Constraint("DistanceX", 1, 1, 1, 2, 5.5),
    Sketcher.Constraint("DistanceX", 5, 2, 5, 1, 1.8),
    Sketcher.Constraint("DistanceY", 0, 1, 0, 2, 0.4),
    Sketcher.Constraint("DistanceY", -1, 1, 2, 2, 9.0),
    Sketcher.Constraint("DistanceY", 4, 2, 4, 1, 0.25),
])
sketch11.setExpression("Constraints[18]", "Params.sketch11_width")
sketch11.setExpression("Constraints[19]", "Params.sketch11_width2")
sketch11.setExpression("Constraints[20]", "Params.sketch11_height")
sketch11.setExpression("Constraints[22]", "Params.sketch11_height2")
pocket7 = doc.addObject("PartDesign::Pocket", "Pocket006")
body.addObject(pocket7)
pocket7.Profile = sketch11
pocket7.setExpression("Length", "Params.pocket7_length")

# Sketch on XZ plane
sketch12 = doc.addObject("Sketcher::SketchObject", "Sketch011")
body.addObject(sketch12)
sketch12.AttachmentSupport = (doc.XZ_Plane, [""])
sketch12.MapMode = "FlatFace"
add_polygon(sketch12, [(-2.95, 1.8), (-4.15, 1.8), (-4.15, 4.4), (-2.95, 4.4)])  # lines 0-3
sketch12.addConstraint([
    Sketcher.Constraint("Horizontal", 0),
    Sketcher.Constraint("Vertical", 1),
    Sketcher.Constraint("Horizontal", 2),
    Sketcher.Constraint("Vertical", 3),
    Sketcher.Constraint("DistanceX", 0, 2, 0, 1, 1.2),
    Sketcher.Constraint("DistanceY", 1, 1, 1, 2, 2.6),
    Sketcher.Constraint("DistanceY", -1, 1, 0, 2, 1.8),
    Sketcher.Constraint("DistanceX", 0, 2, -1, 1, 4.15),
])
sketch12.setExpression("Constraints[8]", "Params.sketch12_width")
sketch12.setExpression("Constraints[9]", "Params.sketch12_height")
pocket8 = doc.addObject("PartDesign::Pocket", "Pocket007")
body.addObject(pocket8)
pocket8.Profile = sketch12
pocket8.setExpression("Length", "Params.pocket8_length")
doc.recompute()

linearpattern4 = doc.addObject("PartDesign::LinearPattern", "LinearPattern003")
body.addObject(linearpattern4)
linearpattern4.Originals = [pocket8]
linearpattern4.Direction = (doc.Z_Axis, [""])
linearpattern4.Mode = "offset"
linearpattern4.setExpression("Offset", "Params.linearpattern4_pitch")
linearpattern4.Occurrences = 2
body.Tip = linearpattern4

# Sketch on XZ plane
sketch13 = doc.addObject("Sketcher::SketchObject", "Sketch012")
body.addObject(sketch13)
sketch13.AttachmentSupport = (doc.XZ_Plane, [""])
sketch13.MapMode = "FlatFace"
add_polygon(sketch13, [(4.05, 2.55), (3.55, 2.55), (3.55, 3.65), (4.05, 3.65), (4.05, 4.4), (4.35, 4.4), (4.35, 1.8), (4.05, 1.8)])  # lines 0-7
sketch13.addConstraint([
    Sketcher.Constraint("Horizontal", 0),
    Sketcher.Constraint("Vertical", 1),
    Sketcher.Constraint("Horizontal", 2),
    Sketcher.Constraint("Vertical", 3),
    Sketcher.Constraint("Horizontal", 4),
    Sketcher.Constraint("Vertical", 5),
    Sketcher.Constraint("Horizontal", 6),
    Sketcher.Constraint("Vertical", 7),
    Sketcher.Constraint("Vertical", 3, 2, 6, 2),
    Sketcher.Constraint("Equal", 3, 7),
    Sketcher.Constraint("DistanceX", 0, 2, 0, 1, 0.5),
    Sketcher.Constraint("DistanceX", 4, 1, 4, 2, 0.3),
    Sketcher.Constraint("DistanceY", 1, 1, 1, 2, 1.1),
    Sketcher.Constraint("DistanceY", 5, 2, 5, 1, 2.6),
    Sketcher.Constraint("DistanceY", -1, 1, 3, 2, 4.4),
    Sketcher.Constraint("DistanceX", -1, 1, 0, 2, 3.55),
])
sketch13.setExpression("Constraints[18]", "Params.sketch13_width")
sketch13.setExpression("Constraints[19]", "Params.sketch13_width2")
sketch13.setExpression("Constraints[20]", "Params.sketch13_height")
sketch13.setExpression("Constraints[21]", "Params.sketch13_height2")
pocket9 = doc.addObject("PartDesign::Pocket", "Pocket008")
body.addObject(pocket9)
pocket9.Profile = sketch13
pocket9.setExpression("Length", "Params.pocket9_length")

# Sketch on XZ plane
sketch14 = doc.addObject("Sketcher::SketchObject", "Sketch013")
body.addObject(sketch14)
sketch14.AttachmentSupport = (doc.XZ_Plane, [""])
sketch14.MapMode = "FlatFace"
add_polygon(sketch14, [(4.05, 6.05), (3.55, 6.05), (3.55, 7.15), (4.05, 7.15), (4.05, 7.9), (4.35, 7.9), (4.35, 5.3), (4.05, 5.3)])  # lines 0-7
sketch14.addConstraint([
    Sketcher.Constraint("Horizontal", 0),
    Sketcher.Constraint("Vertical", 1),
    Sketcher.Constraint("Horizontal", 2),
    Sketcher.Constraint("Vertical", 3),
    Sketcher.Constraint("Horizontal", 4),
    Sketcher.Constraint("Vertical", 5),
    Sketcher.Constraint("Horizontal", 6),
    Sketcher.Constraint("Vertical", 7),
    Sketcher.Constraint("Vertical", 3, 2, 6, 2),
    Sketcher.Constraint("Equal", 3, 7),
    Sketcher.Constraint("DistanceX", 0, 2, 0, 1, 0.5),
    Sketcher.Constraint("DistanceX", 4, 1, 4, 2, 0.3),
    Sketcher.Constraint("DistanceY", 1, 1, 1, 2, 1.1),
    Sketcher.Constraint("DistanceY", 5, 2, 5, 1, 2.6),
    Sketcher.Constraint("DistanceY", -1, 1, 3, 2, 7.9),
    Sketcher.Constraint("DistanceX", -1, 1, 0, 2, 3.55),
])
sketch14.setExpression("Constraints[18]", "Params.sketch14_width")
sketch14.setExpression("Constraints[19]", "Params.sketch14_width2")
sketch14.setExpression("Constraints[20]", "Params.sketch14_height")
sketch14.setExpression("Constraints[21]", "Params.sketch14_height2")
pocket10 = doc.addObject("PartDesign::Pocket", "Pocket009")
body.addObject(pocket10)
pocket10.Profile = sketch14
pocket10.setExpression("Length", "Params.pocket10_length")

# Sketch on XZ plane
sketch15 = doc.addObject("Sketcher::SketchObject", "Sketch014")
body.addObject(sketch15)
sketch15.AttachmentSupport = (doc.XZ_Plane, [""])
sketch15.MapMode = "FlatFace"
sketch15.AttachmentOffset = App.Placement(App.Vector(0, 0, 4.5), App.Rotation())
sketch15.addGeometry([
    Part.Circle(App.Vector(0, 6.6, 0), App.Vector(0, 0, 1), 0.127),
    Part.Circle(App.Vector(0, 3.1, 0), App.Vector(0, 0, 1), 0.127),
], False)
sketch15.addConstraint([
    Sketcher.Constraint("Equal", 0, 1),
    Sketcher.Constraint("PointOnObject", 0, 3, -2),
    Sketcher.Constraint("PointOnObject", 1, 3, -2),
    Sketcher.Constraint("Diameter", 0, 0.254),
    Sketcher.Constraint("DistanceY", -1, 1, 0, 3, 6.6),
    Sketcher.Constraint("DistanceY", -1, 1, 1, 3, 3.1),
])
pocket11 = doc.addObject("PartDesign::Pocket", "Pocket010")
body.addObject(pocket11)
pocket11.Profile = sketch15
pocket11.setExpression("Length", "Params.pocket11_length")

doc.recompute()
